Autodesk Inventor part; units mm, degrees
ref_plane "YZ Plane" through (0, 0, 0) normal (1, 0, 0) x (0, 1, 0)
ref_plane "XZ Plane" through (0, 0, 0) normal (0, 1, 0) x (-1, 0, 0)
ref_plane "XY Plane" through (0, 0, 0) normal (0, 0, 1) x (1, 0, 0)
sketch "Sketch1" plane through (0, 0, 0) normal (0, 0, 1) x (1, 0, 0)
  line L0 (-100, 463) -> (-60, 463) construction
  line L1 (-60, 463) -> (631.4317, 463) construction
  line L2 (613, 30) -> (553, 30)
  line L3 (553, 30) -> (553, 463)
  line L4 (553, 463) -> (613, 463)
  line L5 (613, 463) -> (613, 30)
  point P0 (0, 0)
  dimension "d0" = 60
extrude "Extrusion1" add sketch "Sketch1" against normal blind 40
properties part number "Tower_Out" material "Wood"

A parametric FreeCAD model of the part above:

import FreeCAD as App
import Part
import Sketcher

V = App.Vector

doc = App.newDocument("Part")
body = doc.addObject("PartDesign::Body", "Body")

sketch1 = body.newObject("Sketcher::SketchObject", "Sketch")
sketch1.AttachmentSupport = (doc.getObject("XY_Plane"), [""])
sketch1.MapMode = "FlatFace"
sketch1.addGeometry(Part.LineSegment(V(553, 30, 0), V(613, 30, 0)), False)
sketch1.addGeometry(Part.LineSegment(V(613, 30, 0), V(613, 463, 0)), False)
sketch1.addGeometry(Part.LineSegment(V(613, 463, 0), V(553, 463, 0)), False)
sketch1.addGeometry(Part.LineSegment(V(553, 463, 0), V(553, 30, 0)), False)
sketch1.addConstraint(Sketcher.Constraint("Coincident", 0, 2, 1, 1))
sketch1.addConstraint(Sketcher.Constraint("Coincident", 1, 2, 2, 1))
sketch1.addConstraint(Sketcher.Constraint("Coincident", 2, 2, 3, 1))
sketch1.addConstraint(Sketcher.Constraint("Coincident", 3, 2, 0, 1))
sketch1.addConstraint(Sketcher.Constraint("Horizontal", 0))
sketch1.addConstraint(Sketcher.Constraint("Vertical", 1))
sketch1.addConstraint(Sketcher.Constraint("Horizontal", 2))
sketch1.addConstraint(Sketcher.Constraint("Vertical", 3))
sketch1.addConstraint(Sketcher.Constraint("DistanceX", 0, 1, 0, 2, 60.0))
sketch1.addConstraint(Sketcher.Constraint("DistanceY", 1, 1, 1, 2, 433.0))
sketch1.addConstraint(Sketcher.Constraint("DistanceX", -1, 1, 0, 2, 613.0))
sketch1.addConstraint(Sketcher.Constraint("DistanceY", -1, 1, 0, 2, 30.0))
pad1 = body.newObject("PartDesign::Pad", "Pad")
pad1.Profile = sketch1
pad1.Length = 40
pad1.Reversed = True

doc.recompute()
